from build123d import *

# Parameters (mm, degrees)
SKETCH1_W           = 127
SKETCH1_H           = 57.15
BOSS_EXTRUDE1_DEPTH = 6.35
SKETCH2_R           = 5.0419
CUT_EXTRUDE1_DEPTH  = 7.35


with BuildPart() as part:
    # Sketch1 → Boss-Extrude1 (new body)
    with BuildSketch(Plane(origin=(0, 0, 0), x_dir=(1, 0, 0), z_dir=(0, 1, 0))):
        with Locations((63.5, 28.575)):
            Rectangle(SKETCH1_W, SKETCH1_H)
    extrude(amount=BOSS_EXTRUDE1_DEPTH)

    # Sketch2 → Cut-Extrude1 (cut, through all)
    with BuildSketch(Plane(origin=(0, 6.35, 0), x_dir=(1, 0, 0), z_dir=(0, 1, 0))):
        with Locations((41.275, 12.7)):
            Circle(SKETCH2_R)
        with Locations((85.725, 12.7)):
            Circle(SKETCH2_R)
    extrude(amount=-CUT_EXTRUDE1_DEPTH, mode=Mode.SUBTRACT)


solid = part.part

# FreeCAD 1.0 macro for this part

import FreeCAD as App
import Part
import Sketcher
from FreeCAD import Vector
Q = App.Units.Quantity


def add_polygon(sketch, points):
    """Adds a closed chain of lines whose ends are joined by coincident constraints."""
    first, n = sketch.GeometryCount, len(points)
    for a, b in zip(points, points[1:] + points[:1]):
        sketch.addGeometry(Part.LineSegment(App.Vector(*a, 0), App.Vector(*b, 0)), False)
    for i in range(n):
        sketch.addConstraint(Sketcher.Constraint("Coincident", first + i, 2, first + (i + 1) % n, 1))

doc = App.newDocument("Part")
body = doc.addObject("PartDesign::Body", "Body")

sketch1 = body.newObject("Sketcher::SketchObject", "Sketch")
sketch1.AttachmentSupport = (doc.getObject("XZ_Plane"), [""])
sketch1.MapMode = "FlatFace"
add_polygon(sketch1, [(0, -57.15), (0, 0), (127, 0), (127, -57.15)])
sketch1.addConstraint([
    Sketcher.Constraint("Vertical", 0),
    Sketcher.Constraint("Horizontal", 1),
    Sketcher.Constraint("Vertical", 2),
    Sketcher.Constraint("Horizontal", 3),
    Sketcher.Constraint("Coincident", 0, 2, -1, 1),
    Sketcher.Constraint("DistanceX", 1, 1, 1, 2, Q("5 in")),
    Sketcher.Constraint("DistanceY", 0, 1, 0, 2, Q("2.25 in")),
])
pad1 = body.newObject("PartDesign::Pad", "Pad")
pad1.Profile = sketch1
pad1.Length = Q("0.25 in")
pad1.Reversed = True

sketch2 = body.newObject("Sketcher::SketchObject", "Sketch001")
sketch2.AttachmentSupport = (doc.getObject("XZ_Plane"), [""])
sketch2.MapMode = "FlatFace"
sketch2.AttachmentOffset = App.Placement(Vector(0, 0, -0.25 * 25.4), App.Rotation())
sketch2.addGeometry([
    Part.Circle(Vector(41.275, -12.7, 0), Vector(0, 0, 1), 5.0419),
    Part.Circle(Vector(85.725, -12.7, 0), Vector(0, 0, 1), 5.0419),
], False)
sketch2.addConstraint([
    Sketcher.Constraint("Equal", 0, 1),
    Sketcher.Constraint("Horizontal", 0, 3, 1, 3),
    Sketcher.Constraint("Diameter", 0, Q("0.397 in")),
    Sketcher.Constraint("DistanceY", 0, 3, -1, 1, Q("0.5 in")),
    Sketcher.Constraint("DistanceX", 0, 3, 1, 3, Q("1.75 in")),
    Sketcher.Constraint("DistanceX", -1, 1, 0, 3, Q("1.625 in")),
])
pocket1 = body.newObject("PartDesign::Pocket", "Pocket")
pocket1.Profile = sketch2
pocket1.Type = "ThroughAll"
pocket1.Reversed = True

doc.recompute()
